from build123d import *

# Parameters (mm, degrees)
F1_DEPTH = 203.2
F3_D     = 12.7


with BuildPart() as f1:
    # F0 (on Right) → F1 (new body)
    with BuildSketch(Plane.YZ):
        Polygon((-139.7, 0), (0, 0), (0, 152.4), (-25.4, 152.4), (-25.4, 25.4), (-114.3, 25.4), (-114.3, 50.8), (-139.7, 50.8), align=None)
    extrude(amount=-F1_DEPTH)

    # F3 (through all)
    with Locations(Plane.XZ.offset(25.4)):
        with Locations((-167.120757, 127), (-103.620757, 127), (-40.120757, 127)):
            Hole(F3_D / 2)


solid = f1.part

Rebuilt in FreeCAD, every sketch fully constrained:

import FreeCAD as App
import Part
import Sketcher

V = App.Vector
Q = App.Units.Quantity


def add_polygon(sketch, points):
    """Adds a closed chain of lines whose ends are joined by coincident constraints."""
    first, n = sketch.GeometryCount, len(points)
    for a, b in zip(points, points[1:] + points[:1]):
        sketch.addGeometry(Part.LineSegment(App.Vector(*a, 0), App.Vector(*b, 0)), False)
    for i in range(n):
        sketch.addConstraint(Sketcher.Constraint("Coincident", first + i, 2, first + (i + 1) % n, 1))

doc = App.newDocument("Part")
body = doc.addObject("PartDesign::Body", "Body")

# Sketch on YZ plane
sketch1 = body.newObject("Sketcher::SketchObject", "Sketch")
sketch1.AttachmentSupport = (doc.getObject("YZ_Plane"), [""])
sketch1.MapMode = "FlatFace"
add_polygon(sketch1, [(-140, 0), (0, 0), (0, 152), (-25, 152), (-25, 25), (-114, 25), (-114, 51), (-140, 51)])  # lines 0-7
sketch1.addConstraint([
    Sketcher.Constraint("Horizontal", 0),
    Sketcher.Constraint("Vertical", 1),
    Sketcher.Constraint("Horizontal", 2),
    Sketcher.Constraint("Vertical", 3),
    Sketcher.Constraint("Horizontal", 4),
    Sketcher.Constraint("Vertical", 5),
    Sketcher.Constraint("Horizontal", 6),
    Sketcher.Constraint("Vertical", 7),
    Sketcher.Constraint("Coincident", 0, 2, -1, 1),
    Sketcher.Constraint("Equal", 2, 6),
    Sketcher.Constraint("Equal", 6, 5),
    Sketcher.Constraint("DistanceX", 2, 2, 2, 1, Q("1 in")),
    Sketcher.Constraint("DistanceY", 1, 1, 1, 2, Q("6 in")),
    Sketcher.Constraint("DistanceY", 3, 2, 3, 1, Q("5 in")),
    Sketcher.Constraint("DistanceX", 0, 1, 0, 2, Q("5.5 in")),
])
pad1 = body.newObject("PartDesign::Pad", "Pad")
pad1.Profile = sketch1
pad1.Length = Q("8 in")
pad1.Reversed = True

# Sketch on XZ plane
sketch2 = body.newObject("Sketcher::SketchObject", "Sketch001")
sketch2.AttachmentSupport = (doc.getObject("XZ_Plane"), [""])
sketch2.MapMode = "FlatFace"
sketch2.AttachmentOffset = App.Placement(V(0, 0, 1 * 25.4), App.Rotation())
sketch2.addGeometry([
    Part.Circle(V(-167, 127, 0), V(0, 0, 1), 6),
    Part.Circle(V(-104, 127, 0), V(0, 0, 1), 6),
    Part.Circle(V(-40, 127, 0), V(0, 0, 1), 6),
], False)
sketch2.addConstraint([
    Sketcher.Constraint("Equal", 0, 1),
    Sketcher.Constraint("Equal", 1, 2),
    Sketcher.Constraint("Horizontal", 0, 3, 1, 3),
    Sketcher.Constraint("Horizontal", 1, 3, 2, 3),
    Sketcher.Constraint("Diameter", 0, Q("0.5 in")),
    Sketcher.Constraint("DistanceY", -1, 1, 0, 3, Q("5 in")),
    Sketcher.Constraint("DistanceX", 0, 3, 2, 3, Q("5 in")),
    Sketcher.Constraint("DistanceX", 0, 3, 1, 3, Q("2.5 in")),
    Sketcher.Constraint("DistanceX", 0, 3, -1, 1, Q("167.120757 mm")),
])
doc.recompute()
hole = body.newObject("PartDesign::Hole", "Hole")
hole.Profile = sketch2
hole.ThreadType = "None"
hole.Diameter = Q("0.5 in")
hole.DepthType = "ThroughAll"

doc.recompute()
